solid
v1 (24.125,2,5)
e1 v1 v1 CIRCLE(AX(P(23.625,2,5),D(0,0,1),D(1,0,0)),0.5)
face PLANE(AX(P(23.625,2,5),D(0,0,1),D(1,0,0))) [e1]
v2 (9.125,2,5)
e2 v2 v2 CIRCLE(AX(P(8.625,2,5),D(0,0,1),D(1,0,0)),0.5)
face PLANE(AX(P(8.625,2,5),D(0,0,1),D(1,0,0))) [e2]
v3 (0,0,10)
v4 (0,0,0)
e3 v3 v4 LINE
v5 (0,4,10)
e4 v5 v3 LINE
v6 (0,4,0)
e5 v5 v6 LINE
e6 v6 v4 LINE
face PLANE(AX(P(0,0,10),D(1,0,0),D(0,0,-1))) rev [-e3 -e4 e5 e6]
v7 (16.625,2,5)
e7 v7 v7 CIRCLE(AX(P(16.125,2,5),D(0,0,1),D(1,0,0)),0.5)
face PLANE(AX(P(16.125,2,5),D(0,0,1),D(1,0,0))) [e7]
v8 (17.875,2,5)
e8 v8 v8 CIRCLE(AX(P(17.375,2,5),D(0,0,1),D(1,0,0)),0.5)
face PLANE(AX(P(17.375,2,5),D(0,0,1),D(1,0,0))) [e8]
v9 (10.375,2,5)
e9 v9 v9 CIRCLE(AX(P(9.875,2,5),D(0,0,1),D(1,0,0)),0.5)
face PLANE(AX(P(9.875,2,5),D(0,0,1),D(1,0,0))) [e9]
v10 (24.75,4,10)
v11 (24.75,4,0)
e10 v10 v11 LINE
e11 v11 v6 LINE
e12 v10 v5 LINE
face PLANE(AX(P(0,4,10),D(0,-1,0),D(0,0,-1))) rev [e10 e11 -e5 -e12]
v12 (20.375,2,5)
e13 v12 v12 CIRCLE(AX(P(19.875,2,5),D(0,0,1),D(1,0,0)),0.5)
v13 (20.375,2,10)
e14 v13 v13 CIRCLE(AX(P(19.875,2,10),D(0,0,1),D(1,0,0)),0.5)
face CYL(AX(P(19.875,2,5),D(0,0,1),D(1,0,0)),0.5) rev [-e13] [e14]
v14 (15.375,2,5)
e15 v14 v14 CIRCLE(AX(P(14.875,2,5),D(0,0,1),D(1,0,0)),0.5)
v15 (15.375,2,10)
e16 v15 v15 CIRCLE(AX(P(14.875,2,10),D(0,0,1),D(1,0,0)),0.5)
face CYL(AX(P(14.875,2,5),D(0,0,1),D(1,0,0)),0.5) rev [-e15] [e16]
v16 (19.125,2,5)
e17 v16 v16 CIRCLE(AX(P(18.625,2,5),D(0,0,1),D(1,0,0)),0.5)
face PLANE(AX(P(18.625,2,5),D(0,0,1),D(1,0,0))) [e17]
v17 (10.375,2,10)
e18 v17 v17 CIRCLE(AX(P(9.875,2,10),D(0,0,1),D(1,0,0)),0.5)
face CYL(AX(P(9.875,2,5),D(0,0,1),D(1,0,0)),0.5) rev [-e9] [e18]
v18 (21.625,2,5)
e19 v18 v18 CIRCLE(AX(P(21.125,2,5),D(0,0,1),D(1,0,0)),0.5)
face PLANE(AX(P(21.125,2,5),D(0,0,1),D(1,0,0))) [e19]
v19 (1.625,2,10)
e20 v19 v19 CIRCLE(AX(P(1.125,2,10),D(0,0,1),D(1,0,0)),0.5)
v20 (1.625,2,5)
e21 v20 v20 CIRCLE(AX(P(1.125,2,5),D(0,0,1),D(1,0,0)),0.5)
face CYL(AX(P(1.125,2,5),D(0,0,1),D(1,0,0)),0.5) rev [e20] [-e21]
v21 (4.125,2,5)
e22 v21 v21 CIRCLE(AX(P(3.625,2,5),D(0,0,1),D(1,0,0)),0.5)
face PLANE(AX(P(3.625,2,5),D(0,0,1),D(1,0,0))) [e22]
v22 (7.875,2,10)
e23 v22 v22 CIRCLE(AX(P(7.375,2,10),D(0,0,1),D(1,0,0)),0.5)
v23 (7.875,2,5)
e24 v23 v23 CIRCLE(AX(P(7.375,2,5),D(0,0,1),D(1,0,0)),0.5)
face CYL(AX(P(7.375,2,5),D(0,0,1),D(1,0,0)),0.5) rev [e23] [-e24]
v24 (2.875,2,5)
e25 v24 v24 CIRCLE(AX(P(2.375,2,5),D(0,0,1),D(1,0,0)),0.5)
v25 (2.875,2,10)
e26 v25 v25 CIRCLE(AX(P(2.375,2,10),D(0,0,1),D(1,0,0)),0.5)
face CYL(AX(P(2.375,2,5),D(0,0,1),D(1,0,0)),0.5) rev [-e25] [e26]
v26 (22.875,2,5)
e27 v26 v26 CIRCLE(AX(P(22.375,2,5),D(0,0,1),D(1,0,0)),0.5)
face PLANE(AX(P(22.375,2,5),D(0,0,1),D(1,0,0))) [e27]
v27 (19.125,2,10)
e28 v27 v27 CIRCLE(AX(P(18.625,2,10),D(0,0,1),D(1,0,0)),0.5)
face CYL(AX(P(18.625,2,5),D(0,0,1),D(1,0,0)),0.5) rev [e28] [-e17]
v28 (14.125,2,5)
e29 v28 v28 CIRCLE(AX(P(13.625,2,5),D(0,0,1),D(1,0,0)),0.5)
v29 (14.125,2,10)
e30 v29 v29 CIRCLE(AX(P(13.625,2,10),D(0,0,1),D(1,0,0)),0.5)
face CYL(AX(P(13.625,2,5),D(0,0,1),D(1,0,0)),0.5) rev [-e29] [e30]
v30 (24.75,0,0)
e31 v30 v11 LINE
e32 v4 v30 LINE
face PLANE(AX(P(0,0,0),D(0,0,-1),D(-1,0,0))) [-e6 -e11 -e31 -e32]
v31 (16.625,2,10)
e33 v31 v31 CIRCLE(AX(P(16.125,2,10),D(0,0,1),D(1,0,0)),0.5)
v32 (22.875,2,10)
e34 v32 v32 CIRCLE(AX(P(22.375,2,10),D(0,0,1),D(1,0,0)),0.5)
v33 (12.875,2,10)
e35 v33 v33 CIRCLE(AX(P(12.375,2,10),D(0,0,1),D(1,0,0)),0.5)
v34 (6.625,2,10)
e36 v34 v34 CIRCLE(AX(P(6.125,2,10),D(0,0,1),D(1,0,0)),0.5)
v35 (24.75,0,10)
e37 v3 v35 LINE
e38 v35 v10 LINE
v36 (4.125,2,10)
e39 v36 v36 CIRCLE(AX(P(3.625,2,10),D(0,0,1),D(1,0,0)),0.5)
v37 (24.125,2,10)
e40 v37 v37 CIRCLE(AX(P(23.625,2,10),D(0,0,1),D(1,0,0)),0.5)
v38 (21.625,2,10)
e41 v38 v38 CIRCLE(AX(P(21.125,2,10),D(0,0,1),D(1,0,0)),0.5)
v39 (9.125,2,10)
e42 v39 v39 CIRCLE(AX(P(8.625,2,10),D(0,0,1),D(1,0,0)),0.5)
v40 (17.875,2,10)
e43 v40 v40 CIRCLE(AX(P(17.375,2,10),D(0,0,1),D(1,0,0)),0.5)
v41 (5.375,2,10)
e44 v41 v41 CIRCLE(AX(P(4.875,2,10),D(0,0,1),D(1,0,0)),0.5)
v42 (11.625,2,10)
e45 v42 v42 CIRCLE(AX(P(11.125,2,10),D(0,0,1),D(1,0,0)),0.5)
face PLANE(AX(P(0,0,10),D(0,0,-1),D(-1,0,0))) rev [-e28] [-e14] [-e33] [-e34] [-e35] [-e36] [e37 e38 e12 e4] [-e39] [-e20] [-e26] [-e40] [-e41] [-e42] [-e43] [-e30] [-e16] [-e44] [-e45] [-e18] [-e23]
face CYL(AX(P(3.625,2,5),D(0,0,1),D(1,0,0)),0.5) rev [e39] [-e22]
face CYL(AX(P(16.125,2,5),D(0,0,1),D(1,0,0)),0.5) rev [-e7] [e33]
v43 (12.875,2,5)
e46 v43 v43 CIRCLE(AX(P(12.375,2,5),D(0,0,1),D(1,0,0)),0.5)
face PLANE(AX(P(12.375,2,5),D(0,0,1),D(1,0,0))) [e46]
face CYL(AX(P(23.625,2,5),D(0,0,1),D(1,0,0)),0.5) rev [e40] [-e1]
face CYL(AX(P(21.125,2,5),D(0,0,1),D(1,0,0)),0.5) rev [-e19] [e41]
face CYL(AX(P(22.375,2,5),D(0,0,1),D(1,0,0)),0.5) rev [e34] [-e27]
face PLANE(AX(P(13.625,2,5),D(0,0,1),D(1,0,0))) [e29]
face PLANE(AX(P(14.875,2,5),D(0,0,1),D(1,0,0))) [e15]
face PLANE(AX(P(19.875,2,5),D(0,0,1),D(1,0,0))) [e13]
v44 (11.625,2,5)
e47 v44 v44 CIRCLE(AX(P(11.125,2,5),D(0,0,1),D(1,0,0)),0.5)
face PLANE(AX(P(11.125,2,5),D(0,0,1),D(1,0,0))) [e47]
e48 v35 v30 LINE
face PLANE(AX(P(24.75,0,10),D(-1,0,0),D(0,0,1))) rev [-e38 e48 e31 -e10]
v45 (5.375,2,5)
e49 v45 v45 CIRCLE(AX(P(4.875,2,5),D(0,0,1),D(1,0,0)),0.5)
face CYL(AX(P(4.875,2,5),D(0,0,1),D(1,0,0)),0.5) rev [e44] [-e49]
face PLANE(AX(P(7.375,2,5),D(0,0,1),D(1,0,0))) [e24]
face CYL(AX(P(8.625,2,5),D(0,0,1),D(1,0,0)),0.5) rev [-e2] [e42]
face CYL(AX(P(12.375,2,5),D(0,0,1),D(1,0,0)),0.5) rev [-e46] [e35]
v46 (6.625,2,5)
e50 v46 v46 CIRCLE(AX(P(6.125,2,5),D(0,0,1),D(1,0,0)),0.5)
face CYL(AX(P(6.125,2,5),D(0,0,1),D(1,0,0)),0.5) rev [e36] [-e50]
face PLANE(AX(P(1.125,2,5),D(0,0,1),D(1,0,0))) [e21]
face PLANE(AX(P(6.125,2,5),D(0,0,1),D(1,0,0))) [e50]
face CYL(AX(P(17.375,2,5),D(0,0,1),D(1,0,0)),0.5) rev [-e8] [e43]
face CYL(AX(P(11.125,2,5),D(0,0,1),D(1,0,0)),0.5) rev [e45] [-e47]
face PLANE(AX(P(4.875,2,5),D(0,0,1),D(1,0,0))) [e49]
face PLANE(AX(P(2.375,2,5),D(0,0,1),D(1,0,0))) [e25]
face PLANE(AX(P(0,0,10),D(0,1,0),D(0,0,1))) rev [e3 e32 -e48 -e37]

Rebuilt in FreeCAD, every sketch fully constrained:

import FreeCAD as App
import Part
import Sketcher

V = App.Vector

doc = App.newDocument("Part")
body = doc.addObject("PartDesign::Body", "Body")

# Sketch on XY plane
sketch1 = doc.addObject("Sketcher::SketchObject", "Sketch")
body.addObject(sketch1)
sketch1.AttachmentSupport = (doc.XY_Plane, [""])
sketch1.MapMode = "FlatFace"
sketch1.addGeometry([
    Part.LineSegment(V(0, 4, 0), V(0, 0, 0)),
    Part.LineSegment(V(0, 0, 0), V(24.8, 0, 0)),
    Part.LineSegment(V(24.8, 0, 0), V(24.8, 4, 0)),
    Part.LineSegment(V(24.8, 4, 0), V(0, 4, 0)),
], False)
sketch1.addConstraint([
    Sketcher.Constraint("Coincident", 0, 2, 1, 1),
    Sketcher.Constraint("Coincident", 1, 2, 2, 1),
    Sketcher.Constraint("Coincident", 2, 2, 3, 1),
    Sketcher.Constraint("Coincident", 3, 2, 0, 1),
    Sketcher.Constraint("Vertical", 0),
    Sketcher.Constraint("Horizontal", 1),
    Sketcher.Constraint("Vertical", 2),
    Sketcher.Constraint("Horizontal", 3),
    Sketcher.Constraint("Coincident", 0, 2, -1, 1),
    Sketcher.Constraint("DistanceY", 0, 2, 0, 1, 4.0),
    Sketcher.Constraint("DistanceX", 1, 1, 1, 2, 24.75),
])
pad1 = doc.addObject("PartDesign::Pad", "Pad")
body.addObject(pad1)
pad1.Profile = sketch1
pad1.Length = 10

# Sketch on XY plane
sketch2 = doc.addObject("Sketcher::SketchObject", "Sketch001")
body.addObject(sketch2)
sketch2.AttachmentSupport = (doc.XY_Plane, [""])
sketch2.MapMode = "FlatFace"
sketch2.AttachmentOffset = App.Placement(V(0, 0, 10), App.Rotation())
sketch2.addGeometry([
    Part.Circle(V(1.1, 2, 0), V(0, 0, 1), 0.5),  # 0
    Part.Circle(V(2.4, 2, 0), V(0, 0, 1), 0.5),  # 1
    Part.Circle(V(3.6, 2, 0), V(0, 0, 1), 0.5),  # 2
    Part.Circle(V(4.9, 2, 0), V(0, 0, 1), 0.5),  # 3
    Part.Circle(V(6.1, 2, 0), V(0, 0, 1), 0.5),  # 4
    Part.Circle(V(7.4, 2, 0), V(0, 0, 1), 0.5),  # 5
    Part.Circle(V(8.6, 2, 0), V(0, 0, 1), 0.5),  # 6
    Part.Circle(V(9.9, 2, 0), V(0, 0, 1), 0.5),  # 7
    Part.Circle(V(11.1, 2, 0), V(0, 0, 1), 0.5),  # 8
    Part.Circle(V(12.4, 2, 0), V(0, 0, 1), 0.5),  # 9
    Part.Circle(V(13.6, 2, 0), V(0, 0, 1), 0.5),  # 10
    Part.Circle(V(14.9, 2, 0), V(0, 0, 1), 0.5),  # 11
    Part.Circle(V(16.1, 2, 0), V(0, 0, 1), 0.5),  # 12
    Part.Circle(V(17.4, 2, 0), V(0, 0, 1), 0.5),  # 13
    Part.Circle(V(18.6, 2, 0), V(0, 0, 1), 0.5),  # 14
    Part.Circle(V(19.9, 2, 0), V(0, 0, 1), 0.5),  # 15
    Part.Circle(V(21.1, 2, 0), V(0, 0, 1), 0.5),  # 16
    Part.Circle(V(22.4, 2, 0), V(0, 0, 1), 0.5),  # 17
    Part.Circle(V(23.6, 2, 0), V(0, 0, 1), 0.5),  # 18
], False)
sketch2.addConstraint([
    Sketcher.Constraint("Equal", 0, 1),
    Sketcher.Constraint("Equal", 1, 2),
    Sketcher.Constraint("Equal", 2, 3),
    Sketcher.Constraint("Equal", 3, 4),
    Sketcher.Constraint("Equal", 4, 5),
    Sketcher.Constraint("Equal", 5, 6),
    Sketcher.Constraint("Equal", 6, 7),
    Sketcher.Constraint("Equal", 7, 8),
    Sketcher.Constraint("Equal", 8, 9),
    Sketcher.Constraint("Equal", 9, 10),
    Sketcher.Constraint("Equal", 10, 11),
    Sketcher.Constraint("Equal", 11, 12),
    Sketcher.Constraint("Equal", 12, 13),
    Sketcher.Constraint("Equal", 13, 14),
    Sketcher.Constraint("Equal", 14, 15),
    Sketcher.Constraint("Equal", 15, 16),
    Sketcher.Constraint("Equal", 16, 17),
    Sketcher.Constraint("Equal", 17, 18),
    Sketcher.Constraint("Horizontal", 0, 3, 1, 3),
    Sketcher.Constraint("Horizontal", 1, 3, 2, 3),
    Sketcher.Constraint("Horizontal", 2, 3, 3, 3),
    Sketcher.Constraint("Horizontal", 3, 3, 4, 3),
    Sketcher.Constraint("Horizontal", 4, 3, 5, 3),
    Sketcher.Constraint("Horizontal", 5, 3, 6, 3),
    Sketcher.Constraint("Horizontal", 6, 3, 7, 3),
    Sketcher.Constraint("Horizontal", 7, 3, 8, 3),
    Sketcher.Constraint("Horizontal", 8, 3, 9, 3),
    Sketcher.Constraint("Horizontal", 9, 3, 10, 3),
    Sketcher.Constraint("Horizontal", 10, 3, 11, 3),
    Sketcher.Constraint("Horizontal", 11, 3, 12, 3),
    Sketcher.Constraint("Horizontal", 12, 3, 13, 3),
    Sketcher.Constraint("Horizontal", 13, 3, 14, 3),
    Sketcher.Constraint("Horizontal", 14, 3, 15, 3),
    Sketcher.Constraint("Horizontal", 15, 3, 16, 3),
    Sketcher.Constraint("Horizontal", 16, 3, 17, 3),
    Sketcher.Constraint("Horizontal", 17, 3, 18, 3),
    Sketcher.Constraint("Diameter", 0, 1.0),
    Sketcher.Constraint("DistanceY", -1, 1, 0, 3, 2.0),
    Sketcher.Constraint("DistanceX", 0, 3, 4, 3, 5.0),
    Sketcher.Constraint("DistanceX", 1, 3, 5, 3, 5.0),
    Sketcher.Constraint("DistanceX", 2, 3, 6, 3, 5.0),
    Sketcher.Constraint("DistanceX", 3, 3, 7, 3, 5.0),
    Sketcher.Constraint("DistanceX", 4, 3, 8, 3, 5.0),
    Sketcher.Constraint("DistanceX", 5, 3, 9, 3, 5.0),
    Sketcher.Constraint("DistanceX", 6, 3, 10, 3, 5.0),
    Sketcher.Constraint("DistanceX", 7, 3, 11, 3, 5.0),
    Sketcher.Constraint("DistanceX", 8, 3, 12, 3, 5.0),
    Sketcher.Constraint("DistanceX", 9, 3, 13, 3, 5.0),
    Sketcher.Constraint("DistanceX", 10, 3, 14, 3, 5.0),
    Sketcher.Constraint("DistanceX", 11, 3, 15, 3, 5.0),
    Sketcher.Constraint("DistanceX", 12, 3, 16, 3, 5.0),
    Sketcher.Constraint("DistanceX", 13, 3, 17, 3, 5.0),
    Sketcher.Constraint("DistanceX", 14, 3, 18, 3, 5.0),
    Sketcher.Constraint("DistanceX", 0, 3, 2, 3, 2.5),
    Sketcher.Constraint("DistanceX", 1, 3, 3, 3, 2.5),
    Sketcher.Constraint("DistanceX", 0, 3, 1, 3, 1.25),
    Sketcher.Constraint("DistanceX", -1, 1, 0, 3, 1.125),
])
pocket1 = doc.addObject("PartDesign::Pocket", "Pocket")
body.addObject(pocket1)
pocket1.Profile = sketch2
pocket1.Length = 5

doc.recompute()
